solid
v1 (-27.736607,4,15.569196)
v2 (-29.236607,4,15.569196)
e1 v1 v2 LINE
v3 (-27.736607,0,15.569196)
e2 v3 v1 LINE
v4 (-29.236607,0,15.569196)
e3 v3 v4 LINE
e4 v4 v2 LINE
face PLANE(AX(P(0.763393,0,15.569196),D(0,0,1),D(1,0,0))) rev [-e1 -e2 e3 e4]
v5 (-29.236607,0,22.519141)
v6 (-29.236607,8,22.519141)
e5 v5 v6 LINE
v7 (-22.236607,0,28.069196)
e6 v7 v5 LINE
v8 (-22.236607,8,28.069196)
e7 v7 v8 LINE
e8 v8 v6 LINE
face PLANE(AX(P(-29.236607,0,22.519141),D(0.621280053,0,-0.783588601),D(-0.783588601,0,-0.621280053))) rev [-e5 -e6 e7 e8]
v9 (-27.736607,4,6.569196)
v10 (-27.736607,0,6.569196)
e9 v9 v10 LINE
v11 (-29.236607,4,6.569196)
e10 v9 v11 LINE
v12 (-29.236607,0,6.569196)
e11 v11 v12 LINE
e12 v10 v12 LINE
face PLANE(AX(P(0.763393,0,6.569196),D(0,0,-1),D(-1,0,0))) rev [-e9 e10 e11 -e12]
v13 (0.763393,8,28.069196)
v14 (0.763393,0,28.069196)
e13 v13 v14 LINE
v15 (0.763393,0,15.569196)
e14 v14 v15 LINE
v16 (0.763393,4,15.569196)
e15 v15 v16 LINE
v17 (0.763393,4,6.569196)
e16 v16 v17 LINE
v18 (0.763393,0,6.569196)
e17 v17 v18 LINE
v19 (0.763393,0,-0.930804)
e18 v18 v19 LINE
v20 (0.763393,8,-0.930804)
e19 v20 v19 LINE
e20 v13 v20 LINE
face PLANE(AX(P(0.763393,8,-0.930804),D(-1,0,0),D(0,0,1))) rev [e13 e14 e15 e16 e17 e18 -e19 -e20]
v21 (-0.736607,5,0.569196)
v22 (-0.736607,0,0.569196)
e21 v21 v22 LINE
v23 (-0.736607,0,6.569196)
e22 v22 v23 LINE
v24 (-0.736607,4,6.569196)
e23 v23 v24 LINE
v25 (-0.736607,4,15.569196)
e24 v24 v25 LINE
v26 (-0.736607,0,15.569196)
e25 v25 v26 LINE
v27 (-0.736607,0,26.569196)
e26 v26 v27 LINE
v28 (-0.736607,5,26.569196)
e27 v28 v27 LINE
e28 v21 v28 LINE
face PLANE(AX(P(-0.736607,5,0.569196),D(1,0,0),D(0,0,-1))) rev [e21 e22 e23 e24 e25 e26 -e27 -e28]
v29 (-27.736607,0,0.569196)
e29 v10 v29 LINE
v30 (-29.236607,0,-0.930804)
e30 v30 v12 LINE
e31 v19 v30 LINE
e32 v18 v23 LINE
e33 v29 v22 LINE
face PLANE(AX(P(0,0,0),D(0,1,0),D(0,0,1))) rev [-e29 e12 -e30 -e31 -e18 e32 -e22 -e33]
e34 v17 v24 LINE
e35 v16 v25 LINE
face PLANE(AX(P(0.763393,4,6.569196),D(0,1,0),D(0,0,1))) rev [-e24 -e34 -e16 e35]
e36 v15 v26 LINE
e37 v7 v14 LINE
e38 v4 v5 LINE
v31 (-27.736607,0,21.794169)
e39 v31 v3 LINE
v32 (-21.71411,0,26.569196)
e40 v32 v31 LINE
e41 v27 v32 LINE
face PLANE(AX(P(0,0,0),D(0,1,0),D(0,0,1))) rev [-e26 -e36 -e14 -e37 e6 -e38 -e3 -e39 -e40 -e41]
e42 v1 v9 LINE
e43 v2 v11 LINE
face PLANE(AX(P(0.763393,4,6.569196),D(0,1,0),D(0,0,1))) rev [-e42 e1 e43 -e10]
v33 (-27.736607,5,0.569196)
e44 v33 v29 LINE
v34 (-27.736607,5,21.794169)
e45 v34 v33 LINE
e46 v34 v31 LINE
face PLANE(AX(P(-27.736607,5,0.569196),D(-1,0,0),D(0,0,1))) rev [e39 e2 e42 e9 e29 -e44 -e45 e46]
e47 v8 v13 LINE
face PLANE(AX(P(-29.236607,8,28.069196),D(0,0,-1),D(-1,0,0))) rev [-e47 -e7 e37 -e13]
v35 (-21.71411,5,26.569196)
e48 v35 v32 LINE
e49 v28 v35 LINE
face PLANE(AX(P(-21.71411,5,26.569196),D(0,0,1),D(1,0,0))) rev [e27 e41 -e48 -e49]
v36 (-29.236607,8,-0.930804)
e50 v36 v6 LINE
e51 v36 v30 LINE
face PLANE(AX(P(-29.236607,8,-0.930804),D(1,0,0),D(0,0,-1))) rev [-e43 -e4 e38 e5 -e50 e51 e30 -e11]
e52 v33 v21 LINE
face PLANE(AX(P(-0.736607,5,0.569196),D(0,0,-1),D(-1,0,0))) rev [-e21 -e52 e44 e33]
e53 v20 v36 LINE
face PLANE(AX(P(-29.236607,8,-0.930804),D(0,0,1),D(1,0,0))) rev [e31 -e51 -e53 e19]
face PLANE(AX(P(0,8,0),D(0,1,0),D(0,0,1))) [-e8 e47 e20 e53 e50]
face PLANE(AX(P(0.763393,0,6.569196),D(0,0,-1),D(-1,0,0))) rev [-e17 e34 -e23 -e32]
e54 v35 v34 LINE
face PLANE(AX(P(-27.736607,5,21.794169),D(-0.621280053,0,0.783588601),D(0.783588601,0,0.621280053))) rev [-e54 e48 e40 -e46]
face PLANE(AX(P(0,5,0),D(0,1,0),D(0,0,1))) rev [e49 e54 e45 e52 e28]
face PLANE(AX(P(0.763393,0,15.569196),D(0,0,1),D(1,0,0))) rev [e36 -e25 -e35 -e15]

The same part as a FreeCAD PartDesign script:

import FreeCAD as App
import Part
import Sketcher

doc = App.newDocument("Part")
body = doc.addObject("PartDesign::Body", "Body")

# Sketch on XZ plane
sketch1 = body.newObject("Sketcher::SketchObject", "Sketch")
sketch1.AttachmentSupport = (doc.getObject("XZ_Plane"), [""])
sketch1.MapMode = "FlatFace"
sketch1.addGeometry(Part.LineSegment(App.Vector(-29.236607, -0.930804, 0), App.Vector(-29.236607, 28.069196, 0)), False)
sketch1.addGeometry(Part.LineSegment(App.Vector(-29.236607, 28.069196, 0), App.Vector(0.763393, 28.069196, 0)), False)
sketch1.addGeometry(Part.LineSegment(App.Vector(0.763393, 28.069196, 0), App.Vector(0.763393, -0.930804, 0)), False)
sketch1.addGeometry(Part.LineSegment(App.Vector(0.763393, -0.930804, 0), App.Vector(-29.236607, -0.930804, 0)), False)
sketch1.addConstraint(Sketcher.Constraint("Coincident", 0, 2, 1, 1))
sketch1.addConstraint(Sketcher.Constraint("Coincident", 1, 2, 2, 1))
sketch1.addConstraint(Sketcher.Constraint("Coincident", 2, 2, 3, 1))
sketch1.addConstraint(Sketcher.Constraint("Coincident", 3, 2, 0, 1))
sketch1.addConstraint(Sketcher.Constraint("Vertical", 0))
sketch1.addConstraint(Sketcher.Constraint("Horizontal", 1))
sketch1.addConstraint(Sketcher.Constraint("Vertical", 2))
sketch1.addConstraint(Sketcher.Constraint("Horizontal", 3))
sketch1.addConstraint(Sketcher.Constraint("DistanceX", 1, 1, 1, 2, 30.0))
sketch1.addConstraint(Sketcher.Constraint("DistanceY", 0, 1, 0, 2, 29.0))
sketch1.addConstraint(Sketcher.Constraint("DistanceX", 0, 2, -1, 1, 29.236607))
sketch1.addConstraint(Sketcher.Constraint("DistanceY", -1, 1, 0, 2, 28.069196))
pad1 = body.newObject("PartDesign::Pad", "Pad")
pad1.Profile = sketch1
pad1.Length = 8
pad1.Reversed = True

# Sketch on XZ plane
sketch2 = body.newObject("Sketcher::SketchObject", "Sketch001")
sketch2.AttachmentSupport = (doc.getObject("XZ_Plane"), [""])
sketch2.MapMode = "FlatFace"
sketch2.AttachmentOffset = App.Placement(App.Vector(0, 0, -8), App.Rotation())
sketch2.addGeometry(Part.LineSegment(App.Vector(-26.236607, 2.069196, 0), App.Vector(-26.236607, 10.069196, 0)), False)
sketch2.addGeometry(Part.LineSegment(App.Vector(-26.236607, 10.069196, 0), App.Vector(-2.236607, 10.069196, 0)), False)
sketch2.addGeometry(Part.LineSegment(App.Vector(-2.236607, 10.069196, 0), App.Vector(-2.236607, 2.069196, 0)), False)
sketch2.addGeometry(Part.LineSegment(App.Vector(-2.236607, 2.069196, 0), App.Vector(-26.236607, 2.069196, 0)), False)
sketch2.addGeometry(Part.LineSegment(App.Vector(-26.236607, 13.069196, 0), App.Vector(-26.236607, 21.069196, 0)), False)
sketch2.addGeometry(Part.LineSegment(App.Vector(-26.236607, 21.069196, 0), App.Vector(-2.236607, 21.069196, 0)), False)
sketch2.addGeometry(Part.LineSegment(App.Vector(-2.236607, 21.069196, 0), App.Vector(-2.236607, 13.069196, 0)), False)
sketch2.addGeometry(Part.LineSegment(App.Vector(-2.236607, 13.069196, 0), App.Vector(-26.236607, 13.069196, 0)), False)
sketch2.addConstraint(Sketcher.Constraint("Coincident", 0, 2, 1, 1))
sketch2.addConstraint(Sketcher.Constraint("Coincident", 1, 2, 2, 1))
sketch2.addConstraint(Sketcher.Constraint("Coincident", 2, 2, 3, 1))
sketch2.addConstraint(Sketcher.Constraint("Coincident", 3, 2, 0, 1))
sketch2.addConstraint(Sketcher.Constraint("Coincident", 4, 2, 5, 1))
sketch2.addConstraint(Sketcher.Constraint("Coincident", 5, 2, 6, 1))
sketch2.addConstraint(Sketcher.Constraint("Coincident", 6, 2, 7, 1))
sketch2.addConstraint(Sketcher.Constraint("Coincident", 7, 2, 4, 1))
sketch2.addConstraint(Sketcher.Constraint("Vertical", 0))
sketch2.addConstraint(Sketcher.Constraint("Horizontal", 1))
sketch2.addConstraint(Sketcher.Constraint("Vertical", 2))
sketch2.addConstraint(Sketcher.Constraint("Horizontal", 3))
sketch2.addConstraint(Sketcher.Constraint("Vertical", 4))
sketch2.addConstraint(Sketcher.Constraint("Horizontal", 5))
sketch2.addConstraint(Sketcher.Constraint("Vertical", 6))
sketch2.addConstraint(Sketcher.Constraint("Horizontal", 7))
sketch2.addConstraint(Sketcher.Constraint("Vertical", 3, 2, 4, 2))
sketch2.addConstraint(Sketcher.Constraint("Vertical", 2, 2, 5, 2))
sketch2.addConstraint(Sketcher.Constraint("Equal", 2, 4))
sketch2.addConstraint(Sketcher.Constraint("DistanceX", 1, 1, 1, 2, 24.0))
sketch2.addConstraint(Sketcher.Constraint("DistanceY", 0, 1, 0, 2, 8.0))
sketch2.addConstraint(Sketcher.Constraint("DistanceY", 0, 2, 4, 2, 11.0))
sketch2.addConstraint(Sketcher.Constraint("DistanceX", 0, 2, -1, 1, 26.236607))
sketch2.addConstraint(Sketcher.Constraint("DistanceY", -1, 1, 0, 2, 10.069196))
pocket1 = body.newObject("PartDesign::Pocket", "Pocket")
pocket1.Profile = sketch2
pocket1.Length = 8
pocket1.Reversed = True

# Sketch on XZ plane
sketch3 = body.newObject("Sketcher::SketchObject", "Sketch002")
sketch3.AttachmentSupport = (doc.getObject("XZ_Plane"), [""])
sketch3.MapMode = "FlatFace"
sketch3.AttachmentOffset = App.Placement(App.Vector(0, 0, -8), App.Rotation())
sketch3.addGeometry(Part.LineSegment(App.Vector(-22.236607, 28.069196, 0), App.Vector(-29.236607, 22.519141, 0)), False)
sketch3.addGeometry(Part.LineSegment(App.Vector(-29.236607, 22.519141, 0), App.Vector(-29.236607, 28.069196, 0)), False)
sketch3.addGeometry(Part.LineSegment(App.Vector(-29.236607, 28.069196, 0), App.Vector(-22.236607, 28.069196, 0)), False)
sketch3.addConstraint(Sketcher.Constraint("Coincident", 0, 2, 1, 1))
sketch3.addConstraint(Sketcher.Constraint("Coincident", 1, 2, 2, 1))
sketch3.addConstraint(Sketcher.Constraint("Coincident", 2, 2, 0, 1))
sketch3.addConstraint(Sketcher.Constraint("Vertical", 1))
sketch3.addConstraint(Sketcher.Constraint("Horizontal", 2))
sketch3.addConstraint(Sketcher.Constraint("DistanceX", 2, 1, 2, 2, 7.0))
sketch3.addConstraint(Sketcher.Constraint("Distance", 0, 8.933259))
sketch3.addConstraint(Sketcher.Constraint("DistanceY", -1, 1, 0, 2, 22.519141))
sketch3.addConstraint(Sketcher.Constraint("DistanceX", 0, 2, -1, 1, 29.236607))
pocket2 = body.newObject("PartDesign::Pocket", "Pocket001")
pocket2.Profile = sketch3
pocket2.Length = 8
pocket2.Reversed = True

# Sketch on XZ plane
sketch4 = body.newObject("Sketcher::SketchObject", "Sketch003")
sketch4.AttachmentSupport = (doc.getObject("XZ_Plane"), [""])
sketch4.MapMode = "FlatFace"
sketch4.addGeometry(Part.LineSegment(App.Vector(-27.736607, 0.569196, 0), App.Vector(-0.736607, 0.569196, 0)), False)
sketch4.addGeometry(Part.LineSegment(App.Vector(-0.736607, 0.569196, 0), App.Vector(-0.736607, 26.569196, 0)), False)
sketch4.addGeometry(Part.LineSegment(App.Vector(-0.736607, 26.569196, 0), App.Vector(-21.71411, 26.569196, 0)), False)
sketch4.addGeometry(Part.LineSegment(App.Vector(-21.71411, 26.569196, 0), App.Vector(-27.736607, 21.794169, 0)), False)
sketch4.addGeometry(Part.LineSegment(App.Vector(-27.736607, 21.794169, 0), App.Vector(-27.736607, 0.569196, 0)), False)
sketch4.addConstraint(Sketcher.Constraint("Coincident", 0, 2, 1, 1))
sketch4.addConstraint(Sketcher.Constraint("Coincident", 1, 2, 2, 1))
sketch4.addConstraint(Sketcher.Constraint("Coincident", 2, 2, 3, 1))
sketch4.addConstraint(Sketcher.Constraint("Coincident", 3, 2, 4, 1))
sketch4.addConstraint(Sketcher.Constraint("Coincident", 4, 2, 0, 1))
sketch4.addConstraint(Sketcher.Constraint("Horizontal", 0))
sketch4.addConstraint(Sketcher.Constraint("Vertical", 1))
sketch4.addConstraint(Sketcher.Constraint("Horizontal", 2))
sketch4.addConstraint(Sketcher.Constraint("Vertical", 4))
sketch4.addConstraint(Sketcher.Constraint("DistanceX", 0, 1, 0, 2, 27.0))
sketch4.addConstraint(Sketcher.Constraint("DistanceY", 1, 1, 1, 2, 26.0))
sketch4.addConstraint(Sketcher.Constraint("Distance", 3, 7.68579))
sketch4.addConstraint(Sketcher.Constraint("DistanceX", 2, 2, 2, 1, 20.977503))
sketch4.addConstraint(Sketcher.Constraint("DistanceX", 2, 2, -1, 1, 21.71411))
sketch4.addConstraint(Sketcher.Constraint("DistanceY", -1, 1, 3, 2, 21.794169))
pocket3 = body.newObject("PartDesign::Pocket", "Pocket002")
pocket3.Profile = sketch4
pocket3.Length = 5

# Sketch on YZ plane
sketch5 = body.newObject("Sketcher::SketchObject", "Sketch004")
sketch5.AttachmentSupport = (doc.getObject("YZ_Plane"), [""])
sketch5.MapMode = "FlatFace"
sketch5.AttachmentOffset = App.Placement(App.Vector(0, 0, -29.236607), App.Rotation())
sketch5.addGeometry(Part.LineSegment(App.Vector(4, 6.569196, 0), App.Vector(0, 6.569196, 0)), False)
sketch5.addGeometry(Part.LineSegment(App.Vector(0, 6.569196, 0), App.Vector(0, 15.569196, 0)), False)
sketch5.addGeometry(Part.LineSegment(App.Vector(0, 15.569196, 0), App.Vector(4, 15.569196, 0)), False)
sketch5.addGeometry(Part.LineSegment(App.Vector(4, 15.569196, 0), App.Vector(4, 6.569196, 0)), False)
sketch5.addConstraint(Sketcher.Constraint("Coincident", 0, 2, 1, 1))
sketch5.addConstraint(Sketcher.Constraint("Coincident", 1, 2, 2, 1))
sketch5.addConstraint(Sketcher.Constraint("Coincident", 2, 2, 3, 1))
sketch5.addConstraint(Sketcher.Constraint("Coincident", 3, 2, 0, 1))
sketch5.addConstraint(Sketcher.Constraint("Horizontal", 0))
sketch5.addConstraint(Sketcher.Constraint("Vertical", 1))
sketch5.addConstraint(Sketcher.Constraint("Horizontal", 2))
sketch5.addConstraint(Sketcher.Constraint("Vertical", 3))
sketch5.addConstraint(Sketcher.Constraint("PointOnObject", 0, 2, -2))
sketch5.addConstraint(Sketcher.Constraint("DistanceX", 0, 2, 0, 1, 4.0))
sketch5.addConstraint(Sketcher.Constraint("DistanceY", 1, 1, 1, 2, 9.0))
sketch5.addConstraint(Sketcher.Constraint("DistanceY", -1, 1, 0, 2, 6.569196))
pocket4 = body.newObject("PartDesign::Pocket", "Pocket003")
pocket4.Profile = sketch5
pocket4.Length = 30
pocket4.Reversed = True

# Sketch on XZ plane
sketch6 = body.newObject("Sketcher::SketchObject", "Sketch005")
sketch6.AttachmentSupport = (doc.getObject("XZ_Plane"), [""])
sketch6.MapMode = "FlatFace"
sketch6.AttachmentOffset = App.Placement(App.Vector(0, 0, -8), App.Rotation())
sketch6.addGeometry(Part.LineSegment(App.Vector(-26.236607, 2.069196, 0), App.Vector(-26.236607, 10.069196, 0)), False)
sketch6.addGeometry(Part.LineSegment(App.Vector(-26.236607, 10.069196, 0), App.Vector(-2.236607, 10.069196, 0)), False)
sketch6.addGeometry(Part.LineSegment(App.Vector(-2.236607, 10.069196, 0), App.Vector(-2.236607, 2.069196, 0)), False)
sketch6.addGeometry(Part.LineSegment(App.Vector(-2.236607, 2.069196, 0), App.Vector(-26.236607, 2.069196, 0)), False)
sketch6.addGeometry(Part.LineSegment(App.Vector(-26.236607, 13.069196, 0), App.Vector(-26.236607, 21.069196, 0)), False)
sketch6.addGeometry(Part.LineSegment(App.Vector(-26.236607, 21.069196, 0), App.Vector(-2.236607, 21.069196, 0)), False)
sketch6.addGeometry(Part.LineSegment(App.Vector(-2.236607, 21.069196, 0), App.Vector(-2.236607, 13.069196, 0)), False)
sketch6.addGeometry(Part.LineSegment(App.Vector(-2.236607, 13.069196, 0), App.Vector(-26.236607, 13.069196, 0)), False)
sketch6.addConstraint(Sketcher.Constraint("Coincident", 0, 2, 1, 1))
sketch6.addConstraint(Sketcher.Constraint("Coincident", 1, 2, 2, 1))
sketch6.addConstraint(Sketcher.Constraint("Coincident", 2, 2, 3, 1))
sketch6.addConstraint(Sketcher.Constraint("Coincident", 3, 2, 0, 1))
sketch6.addConstraint(Sketcher.Constraint("Coincident", 4, 2, 5, 1))
sketch6.addConstraint(Sketcher.Constraint("Coincident", 5, 2, 6, 1))
sketch6.addConstraint(Sketcher.Constraint("Coincident", 6, 2, 7, 1))
sketch6.addConstraint(Sketcher.Constraint("Coincident", 7, 2, 4, 1))
sketch6.addConstraint(Sketcher.Constraint("Vertical", 0))
sketch6.addConstraint(Sketcher.Constraint("Horizontal", 1))
sketch6.addConstraint(Sketcher.Constraint("Vertical", 2))
sketch6.addConstraint(Sketcher.Constraint("Horizontal", 3))
sketch6.addConstraint(Sketcher.Constraint("Vertical", 4))
sketch6.addConstraint(Sketcher.Constraint("Horizontal", 5))
sketch6.addConstraint(Sketcher.Constraint("Vertical", 6))
sketch6.addConstraint(Sketcher.Constraint("Horizontal", 7))
sketch6.addConstraint(Sketcher.Constraint("Vertical", 3, 2, 4, 2))
sketch6.addConstraint(Sketcher.Constraint("Vertical", 2, 2, 5, 2))
sketch6.addConstraint(Sketcher.Constraint("Equal", 2, 4))
sketch6.addConstraint(Sketcher.Constraint("DistanceX", 1, 1, 1, 2, 24.0))
sketch6.addConstraint(Sketcher.Constraint("DistanceY", 0, 1, 0, 2, 8.0))
sketch6.addConstraint(Sketcher.Constraint("DistanceY", 0, 2, 4, 2, 11.0))
sketch6.addConstraint(Sketcher.Constraint("DistanceX", 0, 2, -1, 1, 26.236607))
sketch6.addConstraint(Sketcher.Constraint("DistanceY", -1, 1, 0, 2, 10.069196))
pad2 = body.newObject("PartDesign::Pad", "Pad001")
pad2.Profile = sketch6
pad2.Length = 3

doc.recompute()
